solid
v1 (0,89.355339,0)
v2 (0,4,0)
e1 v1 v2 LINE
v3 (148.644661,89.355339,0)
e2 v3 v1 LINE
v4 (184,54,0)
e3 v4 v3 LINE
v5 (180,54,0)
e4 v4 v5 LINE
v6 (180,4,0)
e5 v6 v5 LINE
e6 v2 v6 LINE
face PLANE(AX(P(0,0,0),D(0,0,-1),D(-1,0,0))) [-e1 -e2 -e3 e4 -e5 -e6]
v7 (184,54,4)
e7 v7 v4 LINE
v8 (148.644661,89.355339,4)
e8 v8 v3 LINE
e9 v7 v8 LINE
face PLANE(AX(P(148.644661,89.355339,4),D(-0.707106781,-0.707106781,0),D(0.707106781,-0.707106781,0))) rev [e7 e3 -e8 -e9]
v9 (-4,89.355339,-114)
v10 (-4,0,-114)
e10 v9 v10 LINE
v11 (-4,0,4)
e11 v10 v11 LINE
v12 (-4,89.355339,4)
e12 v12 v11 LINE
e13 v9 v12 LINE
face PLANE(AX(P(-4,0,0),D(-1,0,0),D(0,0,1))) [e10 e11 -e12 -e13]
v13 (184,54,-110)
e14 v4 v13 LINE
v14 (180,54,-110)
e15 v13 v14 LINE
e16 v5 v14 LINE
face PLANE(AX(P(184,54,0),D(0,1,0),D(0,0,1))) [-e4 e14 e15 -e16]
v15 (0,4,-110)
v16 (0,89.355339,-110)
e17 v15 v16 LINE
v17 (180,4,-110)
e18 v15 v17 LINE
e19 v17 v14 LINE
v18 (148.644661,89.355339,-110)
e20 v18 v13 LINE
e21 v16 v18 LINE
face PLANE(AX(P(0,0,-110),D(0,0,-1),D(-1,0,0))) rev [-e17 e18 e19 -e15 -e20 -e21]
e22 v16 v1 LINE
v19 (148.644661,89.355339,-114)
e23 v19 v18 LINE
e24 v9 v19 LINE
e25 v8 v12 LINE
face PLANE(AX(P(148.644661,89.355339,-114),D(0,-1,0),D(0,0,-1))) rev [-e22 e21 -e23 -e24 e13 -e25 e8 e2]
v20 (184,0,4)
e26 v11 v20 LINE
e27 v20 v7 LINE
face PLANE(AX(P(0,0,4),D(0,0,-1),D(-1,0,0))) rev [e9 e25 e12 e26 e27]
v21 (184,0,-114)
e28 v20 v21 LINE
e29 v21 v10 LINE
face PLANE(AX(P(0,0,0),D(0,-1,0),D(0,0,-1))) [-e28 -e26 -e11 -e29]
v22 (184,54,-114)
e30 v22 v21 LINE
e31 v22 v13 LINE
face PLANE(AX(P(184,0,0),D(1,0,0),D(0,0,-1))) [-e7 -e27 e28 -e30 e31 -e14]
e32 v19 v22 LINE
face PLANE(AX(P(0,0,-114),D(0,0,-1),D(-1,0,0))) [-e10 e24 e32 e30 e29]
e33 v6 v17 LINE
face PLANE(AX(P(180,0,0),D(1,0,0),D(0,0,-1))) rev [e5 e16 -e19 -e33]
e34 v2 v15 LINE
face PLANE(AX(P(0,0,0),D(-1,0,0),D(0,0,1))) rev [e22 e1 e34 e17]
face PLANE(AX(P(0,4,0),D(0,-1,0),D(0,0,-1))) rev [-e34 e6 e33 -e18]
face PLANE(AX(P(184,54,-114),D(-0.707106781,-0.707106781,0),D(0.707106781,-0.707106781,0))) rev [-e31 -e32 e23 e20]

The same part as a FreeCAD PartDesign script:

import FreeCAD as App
import Part
import Sketcher

V = App.Vector
Q = App.Units.Quantity

doc = App.newDocument("Part")
body = doc.addObject("PartDesign::Body", "Body")

# Sketch on XZ plane
sketch1 = body.newObject("Sketcher::SketchObject", "Sketch")
sketch1.AttachmentSupport = (doc.getObject("XZ_Plane"), [""])
sketch1.MapMode = "FlatFace"
sketch1.addGeometry([
    Part.LineSegment(V(0, -110, 0), V(0, 0, 0)),
    Part.LineSegment(V(0, 0, 0), V(180, 0, 0)),
    Part.LineSegment(V(180, 0, 0), V(180, -110, 0)),
    Part.LineSegment(V(180, -110, 0), V(0, -110, 0)),
], False)
sketch1.addConstraint([
    Sketcher.Constraint("Coincident", 0, 2, 1, 1),
    Sketcher.Constraint("Coincident", 1, 2, 2, 1),
    Sketcher.Constraint("Coincident", 2, 2, 3, 1),
    Sketcher.Constraint("Coincident", 3, 2, 0, 1),
    Sketcher.Constraint("Vertical", 0),
    Sketcher.Constraint("Horizontal", 1),
    Sketcher.Constraint("Vertical", 2),
    Sketcher.Constraint("Horizontal", 3),
    Sketcher.Constraint("Coincident", 0, 2, -1, 1),
    Sketcher.Constraint("DistanceX", 1, 1, 1, 2, Q("180 mm")),
    Sketcher.Constraint("DistanceY", 0, 1, 0, 2, Q("110 mm")),
])
pad1 = body.newObject("PartDesign::Pad", "Pad")
pad1.Profile = sketch1
pad1.Length = 4
pad1.Reversed = True

# Sketch on YZ plane
sketch2 = body.newObject("Sketcher::SketchObject", "Sketch001")
sketch2.AttachmentSupport = (doc.getObject("YZ_Plane"), [""])
sketch2.MapMode = "FlatFace"
sketch2.AttachmentOffset = App.Placement(V(0, 0, 180), App.Rotation())
sketch2.addGeometry([
    Part.LineSegment(V(54, 0, 0), V(0, 0, 0)),
    Part.LineSegment(V(0, 0, 0), V(0, -110, 0)),
    Part.LineSegment(V(0, -110, 0), V(54, -110, 0)),
    Part.LineSegment(V(54, -110, 0), V(54, 0, 0)),
], False)
sketch2.addConstraint([
    Sketcher.Constraint("Coincident", 0, 2, 1, 1),
    Sketcher.Constraint("Coincident", 1, 2, 2, 1),
    Sketcher.Constraint("Coincident", 2, 2, 3, 1),
    Sketcher.Constraint("Coincident", 3, 2, 0, 1),
    Sketcher.Constraint("Horizontal", 0),
    Sketcher.Constraint("Vertical", 1),
    Sketcher.Constraint("Horizontal", 2),
    Sketcher.Constraint("Vertical", 3),
    Sketcher.Constraint("Coincident", 0, 2, -1, 1),
    Sketcher.Constraint("DistanceX", 0, 2, 0, 1, Q("54 mm")),
    Sketcher.Constraint("DistanceY", 1, 2, 1, 1, Q("110 mm")),
])
pad2 = body.newObject("PartDesign::Pad", "Pad001")
pad2.Profile = sketch2
pad2.Length = 4

# Sketch on XY plane
sketch3 = body.newObject("Sketcher::SketchObject", "Sketch002")
sketch3.AttachmentSupport = (doc.getObject("XY_Plane"), [""])
sketch3.MapMode = "FlatFace"
sketch3.AttachmentOffset = App.Placement(V(0, 0, -110), App.Rotation())
sketch3.addGeometry([
    Part.LineSegment(V(149, 89, 0), V(184, 54, 0)),  # 0
    Part.LineSegment(V(184, 54, 0), V(184, 0, 0)),  # 1
    Part.LineSegment(V(184, 0, 0), V(0, 0, 0)),  # 2
    Part.LineSegment(V(0, 0, 0), V(0, 89, 0)),  # 3
    Part.LineSegment(V(0, 89, 0), V(149, 89, 0)),  # 4
], False)
sketch3.addConstraint([
    Sketcher.Constraint("Coincident", 0, 2, 1, 1),
    Sketcher.Constraint("Coincident", 1, 2, 2, 1),
    Sketcher.Constraint("Coincident", 2, 2, 3, 1),
    Sketcher.Constraint("Coincident", 3, 2, 4, 1),
    Sketcher.Constraint("Coincident", 4, 2, 0, 1),
    Sketcher.Constraint("Vertical", 1),
    Sketcher.Constraint("Horizontal", 2),
    Sketcher.Constraint("Vertical", 3),
    Sketcher.Constraint("Horizontal", 4),
    Sketcher.Constraint("Coincident", 2, 2, -1, 1),
    Sketcher.Constraint("DistanceX", 2, 2, 2, 1, Q("184 mm")),
    Sketcher.Constraint("DistanceY", 1, 2, 1, 1, Q("54 mm")),
    Sketcher.Constraint("Angle", 0, Q("-45 deg")),
    Sketcher.Constraint("Distance", 0, Q("50 mm")),
])
pad3 = body.newObject("PartDesign::Pad", "Pad002")
pad3.Profile = sketch3
pad3.Length = 4
pad3.Reversed = True

# Sketch on YZ plane
sketch4 = body.newObject("Sketcher::SketchObject", "Sketch003")
sketch4.AttachmentSupport = (doc.getObject("YZ_Plane"), [""])
sketch4.MapMode = "FlatFace"
sketch4.addGeometry([
    Part.LineSegment(V(89, -114, 0), V(0, -114, 0)),
    Part.LineSegment(V(0, -114, 0), V(0, 0, 0)),
    Part.LineSegment(V(0, 0, 0), V(89, 0, 0)),
    Part.LineSegment(V(89, 0, 0), V(89, -114, 0)),
], False)
sketch4.addConstraint([
    Sketcher.Constraint("Coincident", 0, 2, 1, 1),
    Sketcher.Constraint("Coincident", 1, 2, 2, 1),
    Sketcher.Constraint("Coincident", 2, 2, 3, 1),
    Sketcher.Constraint("Coincident", 3, 2, 0, 1),
    Sketcher.Constraint("Horizontal", 0),
    Sketcher.Constraint("Vertical", 1),
    Sketcher.Constraint("Horizontal", 2),
    Sketcher.Constraint("Vertical", 3),
    Sketcher.Constraint("Coincident", 1, 2, -1, 1),
    Sketcher.Constraint("DistanceY", 1, 1, 1, 2, Q("114 mm")),
    Sketcher.Constraint("DistanceX", 0, 2, 0, 1, Q("89.355339 mm")),
])
pad4 = body.newObject("PartDesign::Pad", "Pad003")
pad4.Profile = sketch4
pad4.Length = 4
pad4.Reversed = True

# Sketch on XY plane
sketch5 = body.newObject("Sketcher::SketchObject", "Sketch004")
sketch5.AttachmentSupport = (doc.getObject("XY_Plane"), [""])
sketch5.MapMode = "FlatFace"
sketch5.addGeometry([
    Part.LineSegment(V(149, 89, 0), V(-4, 89, 0)),  # 0
    Part.LineSegment(V(-4, 89, 0), V(-4, 0, 0)),  # 1
    Part.LineSegment(V(-4, 0, 0), V(184, 0, 0)),  # 2
    Part.LineSegment(V(184, 0, 0), V(184, 54, 0)),  # 3
    Part.LineSegment(V(184, 54, 0), V(149, 89, 0)),  # 4
], False)
sketch5.addConstraint([
    Sketcher.Constraint("Coincident", 0, 2, 1, 1),
    Sketcher.Constraint("Coincident", 1, 2, 2, 1),
    Sketcher.Constraint("Coincident", 2, 2, 3, 1),
    Sketcher.Constraint("Coincident", 3, 2, 4, 1),
    Sketcher.Constraint("Coincident", 4, 2, 0, 1),
    Sketcher.Constraint("Horizontal", 0),
    Sketcher.Constraint("Vertical", 1),
    Sketcher.Constraint("Horizontal", 2),
    Sketcher.Constraint("Vertical", 3),
    Sketcher.Constraint("PointOnObject", 1, 2, -1),
    Sketcher.Constraint("DistanceX", 2, 1, 2, 2, Q("188 mm")),
    Sketcher.Constraint("DistanceY", 3, 1, 3, 2, Q("54 mm")),
    Sketcher.Constraint("Angle", 4, Q("135 deg")),
    Sketcher.Constraint("Distance", 4, Q("50 mm")),
    Sketcher.Constraint("DistanceX", 0, 2, -1, 1, Q("4 mm")),
])
pad5 = body.newObject("PartDesign::Pad", "Pad004")
pad5.Profile = sketch5
pad5.Length = 4

doc.recompute()
